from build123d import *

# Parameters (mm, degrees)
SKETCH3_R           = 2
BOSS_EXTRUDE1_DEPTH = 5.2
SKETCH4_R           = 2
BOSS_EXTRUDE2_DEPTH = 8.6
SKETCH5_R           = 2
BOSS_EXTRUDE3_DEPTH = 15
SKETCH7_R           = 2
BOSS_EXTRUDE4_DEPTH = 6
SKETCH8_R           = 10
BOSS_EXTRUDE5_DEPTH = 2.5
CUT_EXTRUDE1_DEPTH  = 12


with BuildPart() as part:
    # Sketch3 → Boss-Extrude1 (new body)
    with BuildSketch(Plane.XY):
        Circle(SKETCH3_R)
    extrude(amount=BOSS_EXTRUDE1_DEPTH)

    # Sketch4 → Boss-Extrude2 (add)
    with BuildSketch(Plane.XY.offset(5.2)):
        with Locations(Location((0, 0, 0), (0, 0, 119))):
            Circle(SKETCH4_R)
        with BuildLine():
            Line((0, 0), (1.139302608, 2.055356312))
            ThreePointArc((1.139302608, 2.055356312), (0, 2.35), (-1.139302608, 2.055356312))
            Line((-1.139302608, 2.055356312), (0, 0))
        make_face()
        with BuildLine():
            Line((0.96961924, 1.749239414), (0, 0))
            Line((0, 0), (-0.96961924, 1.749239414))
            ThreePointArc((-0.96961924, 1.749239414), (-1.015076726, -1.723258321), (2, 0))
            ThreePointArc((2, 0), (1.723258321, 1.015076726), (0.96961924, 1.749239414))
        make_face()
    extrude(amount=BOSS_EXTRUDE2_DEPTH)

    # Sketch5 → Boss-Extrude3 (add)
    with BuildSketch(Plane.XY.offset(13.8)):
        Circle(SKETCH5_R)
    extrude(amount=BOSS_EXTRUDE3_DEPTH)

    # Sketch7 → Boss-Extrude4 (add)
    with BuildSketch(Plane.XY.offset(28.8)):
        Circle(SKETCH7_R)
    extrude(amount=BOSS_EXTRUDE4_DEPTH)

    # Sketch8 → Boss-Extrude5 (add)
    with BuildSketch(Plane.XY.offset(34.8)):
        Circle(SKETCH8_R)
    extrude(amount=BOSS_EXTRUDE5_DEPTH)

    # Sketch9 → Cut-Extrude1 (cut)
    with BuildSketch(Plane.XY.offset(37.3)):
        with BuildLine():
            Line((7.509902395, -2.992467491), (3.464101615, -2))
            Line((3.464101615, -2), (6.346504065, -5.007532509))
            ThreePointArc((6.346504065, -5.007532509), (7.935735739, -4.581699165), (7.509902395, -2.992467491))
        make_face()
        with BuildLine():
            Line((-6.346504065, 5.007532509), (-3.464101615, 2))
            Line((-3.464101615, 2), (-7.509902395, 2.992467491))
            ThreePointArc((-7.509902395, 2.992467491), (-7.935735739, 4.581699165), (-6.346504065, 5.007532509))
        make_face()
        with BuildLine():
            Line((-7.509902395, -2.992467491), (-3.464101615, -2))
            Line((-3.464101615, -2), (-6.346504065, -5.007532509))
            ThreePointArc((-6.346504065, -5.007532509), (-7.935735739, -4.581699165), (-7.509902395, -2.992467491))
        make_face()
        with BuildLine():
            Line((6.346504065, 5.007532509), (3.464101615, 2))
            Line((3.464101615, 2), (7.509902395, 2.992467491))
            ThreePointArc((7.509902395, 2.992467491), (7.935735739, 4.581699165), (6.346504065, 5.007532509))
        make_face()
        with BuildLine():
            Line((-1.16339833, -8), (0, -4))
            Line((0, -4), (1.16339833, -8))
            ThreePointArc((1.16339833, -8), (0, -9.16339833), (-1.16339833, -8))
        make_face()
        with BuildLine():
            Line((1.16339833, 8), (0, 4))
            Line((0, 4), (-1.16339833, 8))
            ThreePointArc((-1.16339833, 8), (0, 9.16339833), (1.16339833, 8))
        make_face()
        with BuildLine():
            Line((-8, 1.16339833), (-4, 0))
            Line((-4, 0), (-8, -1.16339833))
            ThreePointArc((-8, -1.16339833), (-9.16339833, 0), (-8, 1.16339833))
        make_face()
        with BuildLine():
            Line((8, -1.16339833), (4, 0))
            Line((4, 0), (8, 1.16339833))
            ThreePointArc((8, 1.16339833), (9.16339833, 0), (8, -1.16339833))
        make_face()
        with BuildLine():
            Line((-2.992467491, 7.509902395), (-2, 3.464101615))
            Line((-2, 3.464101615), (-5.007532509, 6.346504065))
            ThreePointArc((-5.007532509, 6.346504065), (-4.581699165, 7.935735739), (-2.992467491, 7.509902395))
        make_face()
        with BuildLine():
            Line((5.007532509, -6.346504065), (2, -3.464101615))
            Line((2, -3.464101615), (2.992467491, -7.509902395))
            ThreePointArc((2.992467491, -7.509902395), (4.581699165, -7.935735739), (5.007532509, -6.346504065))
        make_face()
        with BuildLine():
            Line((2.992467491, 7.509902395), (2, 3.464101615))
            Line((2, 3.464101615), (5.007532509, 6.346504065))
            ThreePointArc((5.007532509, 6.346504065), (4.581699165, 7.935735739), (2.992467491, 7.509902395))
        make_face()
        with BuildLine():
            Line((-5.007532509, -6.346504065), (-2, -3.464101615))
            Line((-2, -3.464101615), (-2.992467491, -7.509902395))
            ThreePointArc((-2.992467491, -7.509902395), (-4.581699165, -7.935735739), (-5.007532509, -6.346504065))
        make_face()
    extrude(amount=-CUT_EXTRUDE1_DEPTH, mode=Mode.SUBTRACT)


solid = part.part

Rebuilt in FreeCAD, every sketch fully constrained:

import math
import FreeCAD as App
import Part
import Sketcher
Q = App.Units.Quantity

doc = App.newDocument("Part")
params = doc.addObject("Spreadsheet::Sheet", "Params")
for row, (alias, value) in enumerate([
    ("sketch1_diameter", "4 mm"),
    ("pad1_length", "5.2 mm"),
    ("sketch2_radius", "2 mm"),
    ("sketch2_radius2", "2.35 mm"),
    ("pad2_length", "8.6 mm"),
    ("sketch3_diameter", "4 mm"),
    ("pad3_length", "15 mm"),
    ("sketch4_diameter", "4 mm"),
    ("pad4_length", "6 mm"),
    ("sketch5_diameter", "20 mm"),
    ("pad5_length", "2.5 mm"),
    ("pocket1_length", "12 mm"),
], start=1):
    params.set(f"A{row}", alias)
    params.set(f"B{row}", "=" + value)
    params.setAlias(f"B{row}", alias)

body = doc.addObject("PartDesign::Body", "Body")

# Sketch on XY plane
sketch1 = body.newObject("Sketcher::SketchObject", "Sketch")
sketch1.AttachmentSupport = (doc.getObject("XY_Plane"), [""])
sketch1.MapMode = "FlatFace"
sketch1.addGeometry(Part.Circle(App.Vector(0, 0, 0), App.Vector(0, 0, 1), 2), False)
sketch1.addConstraint([
    Sketcher.Constraint("Coincident", 0, 3, -1, 1),
    Sketcher.Constraint("Diameter", 0, 4.0),
])
sketch1.setExpression("Constraints[1]", "Params.sketch1_diameter")
pad1 = body.newObject("PartDesign::Pad", "Pad")
pad1.Profile = sketch1
pad1.setExpression("Length", "Params.pad1_length")

# Sketch on XY plane
sketch2 = body.newObject("Sketcher::SketchObject", "Sketch001")
sketch2.AttachmentSupport = (doc.getObject("XY_Plane"), [""])
sketch2.MapMode = "FlatFace"
sketch2.AttachmentOffset = App.Placement(App.Vector(0, 0, 5.2), App.Rotation())
sketch2.addGeometry([
    Part.LineSegment(App.Vector(-1.14, 2.06, 0), App.Vector(-0.97, 1.75, 0)),
    Part.ArcOfCircle(Part.Circle(App.Vector(0, 0, 0), App.Vector(0, 0, 1), 2), math.radians(119), math.radians(421)),
    Part.LineSegment(App.Vector(0.97, 1.75, 0), App.Vector(1.14, 2.06, 0)),
    Part.ArcOfCircle(Part.Circle(App.Vector(0, 0, 0), App.Vector(0, 0, 1), 2.35), math.radians(61), math.radians(119)),
], False)
sketch2.addConstraint([
    Sketcher.Constraint("Coincident", 0, 2, 1, 1),
    Sketcher.Constraint("Coincident", 1, 2, 2, 1),
    Sketcher.Constraint("Coincident", 2, 2, 3, 1),
    Sketcher.Constraint("Coincident", 3, 2, 0, 1),
    Sketcher.Constraint("Coincident", 1, 3, -1, 1),
    Sketcher.Constraint("Coincident", 3, 3, -1, 1),
    Sketcher.Constraint("Horizontal", 0, 2, 1, 2),
    Sketcher.Constraint("Horizontal", 2, 2, 3, 2),
    Sketcher.Constraint("Radius", 1, 2.0),
    Sketcher.Constraint("Angle", 0, Q("-61 deg")),
    Sketcher.Constraint("Radius", 3, 2.35),
    Sketcher.Constraint("DistanceX", 0, 2, -1, 1, 0.969619),
])
sketch2.setExpression("Constraints[8]", "Params.sketch2_radius")
sketch2.setExpression("Constraints[10]", "Params.sketch2_radius2")
pad2 = body.newObject("PartDesign::Pad", "Pad001")
pad2.Profile = sketch2
pad2.setExpression("Length", "Params.pad2_length")

# Sketch on XY plane
sketch3 = body.newObject("Sketcher::SketchObject", "Sketch002")
sketch3.AttachmentSupport = (doc.getObject("XY_Plane"), [""])
sketch3.MapMode = "FlatFace"
sketch3.AttachmentOffset = App.Placement(App.Vector(0, 0, 13.8), App.Rotation())
sketch3.addGeometry(Part.Circle(App.Vector(0, 0, 0), App.Vector(0, 0, 1), 2), False)
sketch3.addConstraint([
    Sketcher.Constraint("Coincident", 0, 3, -1, 1),
    Sketcher.Constraint("Diameter", 0, 4.0),
])
sketch3.setExpression("Constraints[1]", "Params.sketch3_diameter")
pad3 = body.newObject("PartDesign::Pad", "Pad002")
pad3.Profile = sketch3
pad3.setExpression("Length", "Params.pad3_length")

# Sketch on XY plane
sketch4 = body.newObject("Sketcher::SketchObject", "Sketch003")
sketch4.AttachmentSupport = (doc.getObject("XY_Plane"), [""])
sketch4.MapMode = "FlatFace"
sketch4.AttachmentOffset = App.Placement(App.Vector(0, 0, 28.8), App.Rotation())
sketch4.addGeometry(Part.Circle(App.Vector(0, 0, 0), App.Vector(0, 0, 1), 2), False)
sketch4.addConstraint([
    Sketcher.Constraint("Coincident", 0, 3, -1, 1),
    Sketcher.Constraint("Diameter", 0, 4.0),
])
sketch4.setExpression("Constraints[1]", "Params.sketch4_diameter")
pad4 = body.newObject("PartDesign::Pad", "Pad003")
pad4.Profile = sketch4
pad4.setExpression("Length", "Params.pad4_length")

# Sketch on XY plane
sketch5 = body.newObject("Sketcher::SketchObject", "Sketch004")
sketch5.AttachmentSupport = (doc.getObject("XY_Plane"), [""])
sketch5.MapMode = "FlatFace"
sketch5.AttachmentOffset = App.Placement(App.Vector(0, 0, 34.8), App.Rotation())
sketch5.addGeometry(Part.Circle(App.Vector(0, 0, 0), App.Vector(0, 0, 1), 10), False)
sketch5.addConstraint([
    Sketcher.Constraint("Coincident", 0, 3, -1, 1),
    Sketcher.Constraint("Diameter", 0, 20.0),
])
sketch5.setExpression("Constraints[1]", "Params.sketch5_diameter")
pad5 = body.newObject("PartDesign::Pad", "Pad004")
pad5.Profile = sketch5
pad5.setExpression("Length", "Params.pad5_length")

# Sketch on XY plane
sketch6 = body.newObject("Sketcher::SketchObject", "Sketch005")
sketch6.AttachmentSupport = (doc.getObject("XY_Plane"), [""])
sketch6.MapMode = "FlatFace"
sketch6.AttachmentOffset = App.Placement(App.Vector(0, 0, 37.3), App.Rotation())
sketch6.addGeometry([
    Part.LineSegment(App.Vector(7.5, -3, 0), App.Vector(3.5, -2, 0)),  # 0
    Part.LineSegment(App.Vector(3.5, -2, 0), App.Vector(6.3, -5, 0)),  # 1
    Part.ArcOfCircle(Part.Circle(App.Vector(6.9, -4, 0), App.Vector(0, 0, 1), 1.2), math.radians(-120), math.radians(60)),  # 2
    Part.LineSegment(App.Vector(-3.5, 2, 0), App.Vector(-6.3, 5, 0)),  # 3
    Part.ArcOfCircle(Part.Circle(App.Vector(-6.9, 4, 0), App.Vector(0, 0, 1), 1.2), math.radians(60), math.radians(240)),  # 4
    Part.LineSegment(App.Vector(-7.5, 3, 0), App.Vector(-3.5, 2, 0)),  # 5
    Part.LineSegment(App.Vector(-3.5, -2, 0), App.Vector(-7.5, -3, 0)),  # 6
    Part.ArcOfCircle(Part.Circle(App.Vector(-6.9, -4, 0), App.Vector(0, 0, 1), 1.2), math.radians(120), math.radians(300)),  # 7
    Part.LineSegment(App.Vector(-6.3, -5, 0), App.Vector(-3.5, -2, 0)),  # 8
    Part.LineSegment(App.Vector(6.3, 5, 0), App.Vector(3.5, 2, 0)),  # 9
    Part.LineSegment(App.Vector(3.5, 2, 0), App.Vector(7.5, 3, 0)),  # 10
    Part.ArcOfCircle(Part.Circle(App.Vector(6.9, 4, 0), App.Vector(0, 0, 1), 1.2), math.radians(-60), math.radians(120)),  # 11
    Part.LineSegment(App.Vector(0, -4, 0), App.Vector(-1.2, -8, 0)),  # 12
    Part.ArcOfCircle(Part.Circle(App.Vector(0, -8, 0), App.Vector(0, 0, 1), 1.2), math.radians(180), math.radians(360)),  # 13
    Part.LineSegment(App.Vector(1.2, -8, 0), App.Vector(0, -4, 0)),  # 14
    Part.LineSegment(App.Vector(0, 4, 0), App.Vector(1.2, 8, 0)),  # 15
    Part.ArcOfCircle(Part.Circle(App.Vector(0, 8, 0), App.Vector(0, 0, 1), 1.2), math.radians(0), math.radians(180)),  # 16
    Part.LineSegment(App.Vector(-1.2, 8, 0), App.Vector(0, 4, 0)),  # 17
    Part.LineSegment(App.Vector(-4, 0, 0), App.Vector(-8, 1.2, 0)),  # 18
    Part.ArcOfCircle(Part.Circle(App.Vector(-8, 0, 0), App.Vector(0, 0, 1), 1.2), math.radians(90), math.radians(270)),  # 19
    Part.LineSegment(App.Vector(-8, -1.2, 0), App.Vector(-4, 0, 0)),  # 20
    Part.LineSegment(App.Vector(4, 0, 0), App.Vector(8, -1.2, 0)),  # 21
    Part.ArcOfCircle(Part.Circle(App.Vector(8, 0, 0), App.Vector(0, 0, 1), 1.2), math.radians(-90), math.radians(90)),  # 22
    Part.LineSegment(App.Vector(8, 1.2, 0), App.Vector(4, 0, 0)),  # 23
    Part.LineSegment(App.Vector(-2, 3.5, 0), App.Vector(-3, 7.5, 0)),  # 24
    Part.ArcOfCircle(Part.Circle(App.Vector(-4, 6.9, 0), App.Vector(0, 0, 1), 1.2), math.radians(30), math.radians(210)),  # 25
    Part.LineSegment(App.Vector(-5, 6.3, 0), App.Vector(-2, 3.5, 0)),  # 26
    Part.LineSegment(App.Vector(5, -6.3, 0), App.Vector(2, -3.5, 0)),  # 27
    Part.LineSegment(App.Vector(2, -3.5, 0), App.Vector(3, -7.5, 0)),  # 28
    Part.ArcOfCircle(Part.Circle(App.Vector(4, -6.9, 0), App.Vector(0, 0, 1), 1.2), math.radians(-150), math.radians(30)),  # 29
    Part.LineSegment(App.Vector(3, 7.5, 0), App.Vector(2, 3.5, 0)),  # 30
    Part.LineSegment(App.Vector(2, 3.5, 0), App.Vector(5, 6.3, 0)),  # 31
    Part.ArcOfCircle(Part.Circle(App.Vector(4, 6.9, 0), App.Vector(0, 0, 1), 1.2), math.radians(-30), math.radians(150)),  # 32
    Part.LineSegment(App.Vector(-2, -3.5, 0), App.Vector(-5, -6.3, 0)),  # 33
    Part.ArcOfCircle(Part.Circle(App.Vector(-4, -6.9, 0), App.Vector(0, 0, 1), 1.2), math.radians(150), math.radians(330)),  # 34
    Part.LineSegment(App.Vector(-3, -7.5, 0), App.Vector(-2, -3.5, 0)),  # 35
], False)
sketch6.addConstraint([
    Sketcher.Constraint("Coincident", 0, 2, 1, 1),
    Sketcher.Constraint("Coincident", 1, 2, 2, 1),
    Sketcher.Constraint("Coincident", 2, 2, 0, 1),
    Sketcher.Constraint("Coincident", 3, 2, 4, 1),
    Sketcher.Constraint("Coincident", 4, 2, 5, 1),
    Sketcher.Constraint("Coincident", 5, 2, 3, 1),
    Sketcher.Constraint("Coincident", 6, 2, 7, 1),
    Sketcher.Constraint("Coincident", 7, 2, 8, 1),
    Sketcher.Constraint("Coincident", 8, 2, 6, 1),
    Sketcher.Constraint("Coincident", 9, 2, 10, 1),
    Sketcher.Constraint("Coincident", 10, 2, 11, 1),
    Sketcher.Constraint("Coincident", 11, 2, 9, 1),
    Sketcher.Constraint("Coincident", 12, 2, 13, 1),
    Sketcher.Constraint("Coincident", 13, 2, 14, 1),
    Sketcher.Constraint("Coincident", 14, 2, 12, 1),
    Sketcher.Constraint("Coincident", 15, 2, 16, 1),
    Sketcher.Constraint("Coincident", 16, 2, 17, 1),
    Sketcher.Constraint("Coincident", 17, 2, 15, 1),
    Sketcher.Constraint("Coincident", 18, 2, 19, 1),
    Sketcher.Constraint("Coincident", 19, 2, 20, 1),
    Sketcher.Constraint("Coincident", 20, 2, 18, 1),
    Sketcher.Constraint("Coincident", 21, 2, 22, 1),
    Sketcher.Constraint("Coincident", 22, 2, 23, 1),
    Sketcher.Constraint("Coincident", 23, 2, 21, 1),
    Sketcher.Constraint("Coincident", 24, 2, 25, 1),
    Sketcher.Constraint("Coincident", 25, 2, 26, 1),
    Sketcher.Constraint("Coincident", 26, 2, 24, 1),
    Sketcher.Constraint("Coincident", 27, 2, 28, 1),
    Sketcher.Constraint("Coincident", 28, 2, 29, 1),
    Sketcher.Constraint("Coincident", 29, 2, 27, 1),
    Sketcher.Constraint("Coincident", 30, 2, 31, 1),
    Sketcher.Constraint("Coincident", 31, 2, 32, 1),
    Sketcher.Constraint("Coincident", 32, 2, 30, 1),
    Sketcher.Constraint("Coincident", 33, 2, 34, 1),
    Sketcher.Constraint("Coincident", 34, 2, 35, 1),
    Sketcher.Constraint("Coincident", 35, 2, 33, 1),
    Sketcher.Constraint("Equal", 2, 4),
    Sketcher.Constraint("Equal", 4, 7),
    Sketcher.Constraint("Equal", 7, 11),
    Sketcher.Constraint("Equal", 11, 13),
    Sketcher.Constraint("Equal", 13, 16),
    Sketcher.Constraint("Equal", 16, 19),
    Sketcher.Constraint("Equal", 19, 22),
    Sketcher.Constraint("Equal", 22, 25),
    Sketcher.Constraint("Equal", 25, 29),
    Sketcher.Constraint("Equal", 29, 32),
    Sketcher.Constraint("Equal", 32, 34),
    Sketcher.Constraint("Symmetric", 2, 3, 4, 3, -1, 1),
    Sketcher.Constraint("Symmetric", 7, 3, 11, 3, -1, 1),
    Sketcher.Constraint("Symmetric", 13, 3, 16, 3, -1, 1),
    Sketcher.Constraint("Symmetric", 19, 3, 22, 3, -1, 1),
    Sketcher.Constraint("Symmetric", 25, 3, 29, 3, -1, 1),
    Sketcher.Constraint("Symmetric", 32, 3, 34, 3, -1, 1),
    Sketcher.Constraint("Symmetric", 0, 2, 5, 2, -1, 1),
    Sketcher.Constraint("Symmetric", 8, 2, 9, 2, -1, 1),
    Sketcher.Constraint("Symmetric", 14, 2, 17, 2, -1, 1),
    Sketcher.Constraint("Symmetric", 20, 2, 23, 2, -1, 1),
    Sketcher.Constraint("Symmetric", 26, 2, 27, 2, -1, 1),
    Sketcher.Constraint("Symmetric", 30, 2, 35, 2, -1, 1),
    Sketcher.Constraint("Symmetric", 2, 3, 7, 3, -2),
    Sketcher.Constraint("Symmetric", 25, 3, 32, 3, -2),
    Sketcher.Constraint("Symmetric", 0, 2, 8, 2, -2),
    Sketcher.Constraint("Symmetric", 12, 2, 13, 2, -2),
    Sketcher.Constraint("Symmetric", 19, 2, 21, 2, -2),
    Sketcher.Constraint("Symmetric", 26, 2, 30, 2, -2),
    Sketcher.Constraint("PointOnObject", 14, 2, -2),
    Sketcher.Constraint("PointOnObject", 20, 2, -1),
    Sketcher.Constraint("Parallel", 1, 3),
    Sketcher.Constraint("Parallel", 0, 5),
    Sketcher.Constraint("Parallel", 8, 9),
    Sketcher.Constraint("Parallel", 6, 10),
    Sketcher.Constraint("Parallel", 12, 15),
    Sketcher.Constraint("Parallel", 14, 17),
    Sketcher.Constraint("Perpendicular", 15, 18),
    Sketcher.Constraint("Perpendicular", 17, 20),
    Sketcher.Constraint("Parallel", 20, 23),
    Sketcher.Constraint("Perpendicular", 10, 24),
    Sketcher.Constraint("Perpendicular", 9, 26),
    Sketcher.Constraint("Parallel", 26, 27),
    Sketcher.Constraint("Parallel", 24, 28),
    Sketcher.Constraint("Perpendicular", 5, 30),
    Sketcher.Constraint("Perpendicular", 3, 31),
    Sketcher.Constraint("Parallel", 31, 33),
    Sketcher.Constraint("Parallel", 30, 35),
    Sketcher.Constraint("Horizontal", 2, 2, 6, 2),
    Sketcher.Constraint("Horizontal", 1, 2, 7, 2),
    Sketcher.Constraint("Horizontal", 13, 3, 12, 2),
    Sketcher.Constraint("Horizontal", 7, 3, 14, 2),
    Sketcher.Constraint("Vertical", 19, 3, 18, 2),
    Sketcher.Constraint("Vertical", 34, 3, 20, 2),
    Sketcher.Constraint("Equal", 0, 1),
    Sketcher.Constraint("Equal", 10, 12),
    Sketcher.Constraint("Equal", 23, 24),
    Sketcher.Constraint("DistanceY", 2, 3, -1, 1, 4.0),
    Sketcher.Constraint("DistanceY", 13, 3, -1, 1, 8.0),
    Sketcher.Constraint("DistanceX", 19, 3, -1, 1, 8.0),
    Sketcher.Constraint("DistanceY", 0, 2, -1, 1, 2.0),
    Sketcher.Constraint("DistanceX", 26, 2, -1, 1, 2.0),
    Sketcher.Constraint("Radius", 2, 1.163398),
    Sketcher.Constraint("DistanceX", -1, 1, 0, 2, 3.464102),
    Sketcher.Constraint("DistanceY", -1, 1, 26, 2, 3.464102),
    Sketcher.Constraint("DistanceX", 0, 2, 2, 3, 3.464102),
])
pocket1 = body.newObject("PartDesign::Pocket", "Pocket")
pocket1.Profile = sketch6
pocket1.setExpression("Length", "Params.pocket1_length")

doc.recompute()
